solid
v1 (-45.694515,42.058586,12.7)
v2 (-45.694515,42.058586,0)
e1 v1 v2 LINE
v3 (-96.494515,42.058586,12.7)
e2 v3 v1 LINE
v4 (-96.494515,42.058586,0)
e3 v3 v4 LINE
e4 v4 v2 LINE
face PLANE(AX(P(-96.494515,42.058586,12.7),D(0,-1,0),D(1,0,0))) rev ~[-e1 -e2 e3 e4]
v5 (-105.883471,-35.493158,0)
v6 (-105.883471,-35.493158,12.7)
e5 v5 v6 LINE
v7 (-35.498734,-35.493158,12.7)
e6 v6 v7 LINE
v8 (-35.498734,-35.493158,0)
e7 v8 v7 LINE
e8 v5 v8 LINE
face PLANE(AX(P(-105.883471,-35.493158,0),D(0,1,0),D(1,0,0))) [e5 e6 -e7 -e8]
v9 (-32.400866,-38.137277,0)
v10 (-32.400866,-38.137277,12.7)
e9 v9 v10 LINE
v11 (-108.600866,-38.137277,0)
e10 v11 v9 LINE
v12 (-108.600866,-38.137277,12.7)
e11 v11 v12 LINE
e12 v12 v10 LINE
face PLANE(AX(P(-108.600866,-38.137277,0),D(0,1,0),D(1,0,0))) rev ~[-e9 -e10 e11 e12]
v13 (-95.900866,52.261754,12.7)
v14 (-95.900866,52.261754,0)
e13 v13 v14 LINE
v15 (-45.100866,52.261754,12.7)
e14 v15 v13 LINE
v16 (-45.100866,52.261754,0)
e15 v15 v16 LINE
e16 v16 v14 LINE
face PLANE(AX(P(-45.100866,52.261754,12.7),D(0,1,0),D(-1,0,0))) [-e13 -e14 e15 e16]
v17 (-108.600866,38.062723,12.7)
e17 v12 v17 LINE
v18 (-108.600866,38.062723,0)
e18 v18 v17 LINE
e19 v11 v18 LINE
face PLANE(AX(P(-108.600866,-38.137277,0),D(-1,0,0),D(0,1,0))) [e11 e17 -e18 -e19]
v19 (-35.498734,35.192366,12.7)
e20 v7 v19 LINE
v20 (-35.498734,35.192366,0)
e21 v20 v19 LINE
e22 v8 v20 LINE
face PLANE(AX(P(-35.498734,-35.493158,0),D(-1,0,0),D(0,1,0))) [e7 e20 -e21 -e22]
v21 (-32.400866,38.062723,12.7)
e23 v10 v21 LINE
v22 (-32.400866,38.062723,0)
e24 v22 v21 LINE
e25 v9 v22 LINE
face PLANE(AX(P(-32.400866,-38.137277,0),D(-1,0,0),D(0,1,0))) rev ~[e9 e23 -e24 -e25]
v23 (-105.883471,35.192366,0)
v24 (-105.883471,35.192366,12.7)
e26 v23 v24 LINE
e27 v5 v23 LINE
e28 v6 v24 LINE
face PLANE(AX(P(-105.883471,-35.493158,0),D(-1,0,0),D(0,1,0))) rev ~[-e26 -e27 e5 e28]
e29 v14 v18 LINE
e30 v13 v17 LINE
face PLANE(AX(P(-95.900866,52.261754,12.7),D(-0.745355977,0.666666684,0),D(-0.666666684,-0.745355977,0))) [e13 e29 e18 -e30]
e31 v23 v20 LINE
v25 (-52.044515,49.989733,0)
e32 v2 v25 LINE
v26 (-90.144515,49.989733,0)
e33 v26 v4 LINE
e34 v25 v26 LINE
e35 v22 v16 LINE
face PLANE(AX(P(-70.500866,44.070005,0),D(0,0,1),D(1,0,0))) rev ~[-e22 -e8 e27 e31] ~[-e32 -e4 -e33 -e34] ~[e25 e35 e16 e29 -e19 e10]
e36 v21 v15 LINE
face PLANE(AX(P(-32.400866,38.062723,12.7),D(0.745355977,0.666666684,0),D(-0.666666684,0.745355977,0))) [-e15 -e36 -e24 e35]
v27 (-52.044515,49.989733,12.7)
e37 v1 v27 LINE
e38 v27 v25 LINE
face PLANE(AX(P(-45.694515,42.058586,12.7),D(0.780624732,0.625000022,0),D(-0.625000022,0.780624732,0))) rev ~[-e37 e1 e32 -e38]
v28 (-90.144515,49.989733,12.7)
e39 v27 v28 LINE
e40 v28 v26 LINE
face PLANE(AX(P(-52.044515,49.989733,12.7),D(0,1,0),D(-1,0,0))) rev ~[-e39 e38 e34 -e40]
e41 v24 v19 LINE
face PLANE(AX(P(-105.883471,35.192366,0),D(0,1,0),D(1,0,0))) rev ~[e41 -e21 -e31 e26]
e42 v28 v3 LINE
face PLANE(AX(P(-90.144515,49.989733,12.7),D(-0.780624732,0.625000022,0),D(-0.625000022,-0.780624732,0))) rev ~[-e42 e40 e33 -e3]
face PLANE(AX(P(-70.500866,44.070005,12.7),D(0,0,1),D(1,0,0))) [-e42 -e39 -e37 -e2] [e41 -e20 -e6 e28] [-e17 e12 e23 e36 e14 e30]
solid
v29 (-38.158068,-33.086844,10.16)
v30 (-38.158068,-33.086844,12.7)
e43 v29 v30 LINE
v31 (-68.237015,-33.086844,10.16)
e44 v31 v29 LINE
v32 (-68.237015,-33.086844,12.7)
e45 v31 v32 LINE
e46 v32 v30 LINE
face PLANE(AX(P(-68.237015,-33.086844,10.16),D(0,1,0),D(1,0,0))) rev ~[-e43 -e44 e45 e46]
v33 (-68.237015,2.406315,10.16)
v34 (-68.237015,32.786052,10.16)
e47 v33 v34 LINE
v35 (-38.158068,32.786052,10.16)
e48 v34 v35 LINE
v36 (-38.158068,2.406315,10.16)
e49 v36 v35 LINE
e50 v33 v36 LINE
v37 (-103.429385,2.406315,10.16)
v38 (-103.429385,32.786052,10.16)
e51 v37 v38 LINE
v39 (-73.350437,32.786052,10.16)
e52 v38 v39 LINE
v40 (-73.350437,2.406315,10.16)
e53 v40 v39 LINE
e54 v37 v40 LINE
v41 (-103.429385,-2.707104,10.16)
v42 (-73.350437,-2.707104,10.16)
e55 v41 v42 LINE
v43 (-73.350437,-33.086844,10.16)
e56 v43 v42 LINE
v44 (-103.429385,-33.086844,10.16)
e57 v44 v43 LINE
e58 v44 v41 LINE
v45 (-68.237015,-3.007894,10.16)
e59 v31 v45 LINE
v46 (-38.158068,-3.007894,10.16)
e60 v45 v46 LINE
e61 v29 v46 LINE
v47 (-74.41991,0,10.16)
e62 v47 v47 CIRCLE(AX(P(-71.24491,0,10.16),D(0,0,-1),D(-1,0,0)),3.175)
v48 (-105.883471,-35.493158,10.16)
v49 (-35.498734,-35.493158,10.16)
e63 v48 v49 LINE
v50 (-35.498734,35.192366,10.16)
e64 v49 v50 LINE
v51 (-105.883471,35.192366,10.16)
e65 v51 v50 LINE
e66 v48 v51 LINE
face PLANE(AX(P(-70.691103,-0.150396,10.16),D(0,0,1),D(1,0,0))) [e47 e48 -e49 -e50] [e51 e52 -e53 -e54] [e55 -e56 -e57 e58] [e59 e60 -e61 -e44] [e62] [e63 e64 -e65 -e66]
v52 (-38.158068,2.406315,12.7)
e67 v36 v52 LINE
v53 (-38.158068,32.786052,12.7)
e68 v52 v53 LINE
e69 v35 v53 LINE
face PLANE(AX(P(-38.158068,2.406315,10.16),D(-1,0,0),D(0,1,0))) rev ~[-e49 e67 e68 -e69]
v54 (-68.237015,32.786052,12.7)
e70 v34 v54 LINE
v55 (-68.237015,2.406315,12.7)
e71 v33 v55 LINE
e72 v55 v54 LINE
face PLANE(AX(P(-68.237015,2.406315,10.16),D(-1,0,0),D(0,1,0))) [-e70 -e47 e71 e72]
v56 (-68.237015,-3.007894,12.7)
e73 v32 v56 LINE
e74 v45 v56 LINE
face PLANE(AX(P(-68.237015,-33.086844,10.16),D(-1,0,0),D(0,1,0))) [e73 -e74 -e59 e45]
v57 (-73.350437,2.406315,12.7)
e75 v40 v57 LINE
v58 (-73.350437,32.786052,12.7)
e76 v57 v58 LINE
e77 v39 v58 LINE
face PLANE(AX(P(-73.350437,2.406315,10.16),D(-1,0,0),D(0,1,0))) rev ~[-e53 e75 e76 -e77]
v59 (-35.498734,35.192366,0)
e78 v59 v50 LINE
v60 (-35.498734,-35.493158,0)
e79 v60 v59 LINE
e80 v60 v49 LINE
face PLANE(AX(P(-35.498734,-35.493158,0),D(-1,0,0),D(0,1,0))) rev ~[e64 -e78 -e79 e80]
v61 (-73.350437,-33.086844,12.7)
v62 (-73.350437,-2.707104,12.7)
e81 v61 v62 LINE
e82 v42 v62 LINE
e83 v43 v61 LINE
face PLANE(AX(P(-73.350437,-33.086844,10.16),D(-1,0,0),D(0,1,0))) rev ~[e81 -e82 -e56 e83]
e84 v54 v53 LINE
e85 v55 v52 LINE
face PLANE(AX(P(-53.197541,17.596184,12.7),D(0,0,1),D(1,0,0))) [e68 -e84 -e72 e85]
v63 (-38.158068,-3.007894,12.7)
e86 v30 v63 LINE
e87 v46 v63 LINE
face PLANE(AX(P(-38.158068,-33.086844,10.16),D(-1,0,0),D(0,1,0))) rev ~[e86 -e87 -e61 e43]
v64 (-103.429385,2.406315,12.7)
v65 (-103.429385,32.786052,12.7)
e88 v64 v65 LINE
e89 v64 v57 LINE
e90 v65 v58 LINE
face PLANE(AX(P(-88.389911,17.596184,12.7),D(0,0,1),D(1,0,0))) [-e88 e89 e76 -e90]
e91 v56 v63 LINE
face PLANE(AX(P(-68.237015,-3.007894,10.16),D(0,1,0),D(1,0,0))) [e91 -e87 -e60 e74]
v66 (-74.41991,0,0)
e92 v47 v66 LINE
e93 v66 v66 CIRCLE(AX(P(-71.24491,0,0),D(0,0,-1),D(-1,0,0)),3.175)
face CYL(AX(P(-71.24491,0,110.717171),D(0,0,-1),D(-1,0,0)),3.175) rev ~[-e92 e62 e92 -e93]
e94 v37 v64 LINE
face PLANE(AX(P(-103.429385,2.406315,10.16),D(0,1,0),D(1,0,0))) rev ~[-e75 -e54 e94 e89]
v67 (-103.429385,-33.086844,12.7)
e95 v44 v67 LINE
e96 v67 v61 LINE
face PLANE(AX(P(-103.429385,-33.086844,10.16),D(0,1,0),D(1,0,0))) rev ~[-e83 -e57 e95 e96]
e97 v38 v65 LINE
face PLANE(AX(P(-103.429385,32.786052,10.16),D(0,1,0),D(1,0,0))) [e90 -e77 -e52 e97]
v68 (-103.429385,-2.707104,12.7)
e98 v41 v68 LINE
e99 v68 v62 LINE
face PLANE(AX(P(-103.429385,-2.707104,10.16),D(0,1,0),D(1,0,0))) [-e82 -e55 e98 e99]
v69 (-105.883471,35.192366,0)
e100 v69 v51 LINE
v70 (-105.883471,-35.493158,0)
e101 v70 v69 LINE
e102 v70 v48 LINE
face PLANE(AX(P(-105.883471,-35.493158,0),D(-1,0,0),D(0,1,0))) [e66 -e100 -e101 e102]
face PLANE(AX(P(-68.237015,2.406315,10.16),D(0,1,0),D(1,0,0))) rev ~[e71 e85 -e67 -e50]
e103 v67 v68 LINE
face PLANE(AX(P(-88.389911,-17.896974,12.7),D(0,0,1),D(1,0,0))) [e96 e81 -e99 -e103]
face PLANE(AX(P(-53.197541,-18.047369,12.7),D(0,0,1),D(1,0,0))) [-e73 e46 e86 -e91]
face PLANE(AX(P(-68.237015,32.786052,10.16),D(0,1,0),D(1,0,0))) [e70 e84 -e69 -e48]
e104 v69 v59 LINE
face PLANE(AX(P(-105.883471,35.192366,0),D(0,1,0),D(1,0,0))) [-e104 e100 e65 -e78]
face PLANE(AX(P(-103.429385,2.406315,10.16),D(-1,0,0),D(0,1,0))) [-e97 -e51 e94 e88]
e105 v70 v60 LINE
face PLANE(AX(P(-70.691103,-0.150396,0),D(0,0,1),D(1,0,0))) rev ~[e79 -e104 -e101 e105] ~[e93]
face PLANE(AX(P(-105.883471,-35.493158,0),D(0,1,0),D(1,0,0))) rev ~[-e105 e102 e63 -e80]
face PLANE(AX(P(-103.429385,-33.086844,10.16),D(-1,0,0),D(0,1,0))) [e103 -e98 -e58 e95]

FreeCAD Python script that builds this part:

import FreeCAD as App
import Part
import Sketcher
Q = App.Units.Quantity

doc = App.newDocument("Part")
params = doc.addObject("Spreadsheet::Sheet", "Params")
for row, (alias, value) in enumerate([
    ("sketch1_width", "3 in"),
    ("pad1_length", "0.5 in"),
    ("sketch2_width", "3 in"),
    ("sketch2_width2", "2 in"),
    ("sketch2_length", "0.75 in"),
    ("pad2_length", "0.5 in"),
    ("sketch3_width", "2 in"),
    ("sketch3_width2", "1.5 in"),
    ("sketch3_length", "0.4 in"),
    ("pad3_length", "0.4 in"),
    ("pad4_length", "0.1 in"),
    ("sketch6_diameter", "0.25 in"),
    ("hole_diameter", "0.25 in"),
], start=1):
    params.set(f"A{row}", alias)
    params.set(f"B{row}", "=" + value)
    params.setAlias(f"B{row}", alias)

body = doc.addObject("PartDesign::Body", "Body")

sketch1 = doc.addObject("Sketcher::SketchObject", "Sketch")
body.addObject(sketch1)
sketch1.AttachmentSupport = (doc.XY_Plane, [""])
sketch1.MapMode = "FlatFace"
sketch1.addGeometry([
    Part.LineSegment(App.Vector(-109, 38, 0), App.Vector(-109, -38, 0)),
    Part.LineSegment(App.Vector(-109, -38, 0), App.Vector(-32, -38, 0)),
    Part.LineSegment(App.Vector(-32, -38, 0), App.Vector(-32, 38, 0)),
    Part.LineSegment(App.Vector(-32, 38, 0), App.Vector(-109, 38, 0)),
    Part.LineSegment(App.Vector(-35, -35, 0), App.Vector(-106, -35, 0)),
    Part.LineSegment(App.Vector(-106, -35, 0), App.Vector(-106, 35, 0)),
    Part.LineSegment(App.Vector(-106, 35, 0), App.Vector(-35, 35, 0)),
    Part.LineSegment(App.Vector(-35, 35, 0), App.Vector(-35, -35, 0)),
], False)
sketch1.addConstraint([
    Sketcher.Constraint("Coincident", 0, 2, 1, 1),
    Sketcher.Constraint("Coincident", 1, 2, 2, 1),
    Sketcher.Constraint("Coincident", 2, 2, 3, 1),
    Sketcher.Constraint("Coincident", 3, 2, 0, 1),
    Sketcher.Constraint("Coincident", 4, 2, 5, 1),
    Sketcher.Constraint("Coincident", 5, 2, 6, 1),
    Sketcher.Constraint("Coincident", 6, 2, 7, 1),
    Sketcher.Constraint("Coincident", 7, 2, 4, 1),
    Sketcher.Constraint("Vertical", 0),
    Sketcher.Constraint("Horizontal", 1),
    Sketcher.Constraint("Vertical", 2),
    Sketcher.Constraint("Horizontal", 3),
    Sketcher.Constraint("Horizontal", 4),
    Sketcher.Constraint("Vertical", 5),
    Sketcher.Constraint("Horizontal", 6),
    Sketcher.Constraint("Vertical", 7),
    Sketcher.Constraint("Equal", 3, 0),
    Sketcher.Constraint("DistanceX", 1, 1, 1, 2, Q("3 in")),
    Sketcher.Constraint("DistanceX", 4, 2, 4, 1, Q("70.384737 mm")),
    Sketcher.Constraint("DistanceY", 5, 1, 5, 2, Q("70.685525 mm")),
    Sketcher.Constraint("DistanceX", 4, 2, -1, 1, Q("105.883471 mm")),
    Sketcher.Constraint("DistanceY", 4, 2, -1, 1, Q("35.493158 mm")),
    Sketcher.Constraint("DistanceY", 0, 2, 4, 2, Q("2.644118 mm")),
    Sketcher.Constraint("DistanceX", 6, 2, 2, 2, Q("3.097868 mm")),
])
sketch1.setExpression("Constraints[17]", "Params.sketch1_width")
pad1 = doc.addObject("PartDesign::Pad", "Pad")
body.addObject(pad1)
pad1.Profile = sketch1
pad1.setExpression("Length", "Params.pad1_length")

sketch2 = doc.addObject("Sketcher::SketchObject", "Sketch001")
body.addObject(sketch2)
sketch2.AttachmentSupport = (doc.XY_Plane, [""])
sketch2.MapMode = "FlatFace"
sketch2.AttachmentOffset = App.Placement(App.Vector(0, 0, 0.5 * 25.4), App.Rotation())
sketch2.addGeometry([
    Part.LineSegment(App.Vector(-96, 52, 0), App.Vector(-109, 38, 0)),
    Part.LineSegment(App.Vector(-109, 38, 0), App.Vector(-32, 38, 0)),
    Part.LineSegment(App.Vector(-32, 38, 0), App.Vector(-45, 52, 0)),
    Part.LineSegment(App.Vector(-45, 52, 0), App.Vector(-96, 52, 0)),
], False)
sketch2.addConstraint([
    Sketcher.Constraint("Coincident", 0, 2, 1, 1),
    Sketcher.Constraint("Coincident", 1, 2, 2, 1),
    Sketcher.Constraint("Coincident", 2, 2, 3, 1),
    Sketcher.Constraint("Coincident", 3, 2, 0, 1),
    Sketcher.Constraint("Horizontal", 1),
    Sketcher.Constraint("Horizontal", 3),
    Sketcher.Constraint("Equal", 0, 2),
    Sketcher.Constraint("DistanceX", 1, 1, 1, 2, Q("3 in")),
    Sketcher.Constraint("DistanceX", 3, 2, 3, 1, Q("2 in")),
    Sketcher.Constraint("Distance", 0, Q("0.75 in")),
    Sketcher.Constraint("DistanceX", 0, 2, -1, 1, Q("108.600866 mm")),
    Sketcher.Constraint("DistanceY", -1, 1, 0, 2, Q("38.062723 mm")),
])
sketch2.setExpression("Constraints[7]", "Params.sketch2_width")
sketch2.setExpression("Constraints[8]", "Params.sketch2_width2")
sketch2.setExpression("Constraints[9]", "Params.sketch2_length")
pad2 = doc.addObject("PartDesign::Pad", "Pad001")
body.addObject(pad2)
pad2.Profile = sketch2
pad2.setExpression("Length", "Params.pad2_length")
pad2.Reversed = True

sketch3 = doc.addObject("Sketcher::SketchObject", "Sketch002")
body.addObject(sketch3)
sketch3.AttachmentSupport = (doc.XY_Plane, [""])
sketch3.MapMode = "FlatFace"
sketch3.AttachmentOffset = App.Placement(App.Vector(0, 0, 0.5 * 25.4), App.Rotation())
sketch3.addGeometry([
    Part.LineSegment(App.Vector(-90, 50, 0), App.Vector(-96, 42, 0)),
    Part.LineSegment(App.Vector(-96, 42, 0), App.Vector(-46, 42, 0)),
    Part.LineSegment(App.Vector(-46, 42, 0), App.Vector(-52, 50, 0)),
    Part.LineSegment(App.Vector(-52, 50, 0), App.Vector(-90, 50, 0)),
], False)
sketch3.addConstraint([
    Sketcher.Constraint("Coincident", 0, 2, 1, 1),
    Sketcher.Constraint("Coincident", 1, 2, 2, 1),
    Sketcher.Constraint("Coincident", 2, 2, 3, 1),
    Sketcher.Constraint("Coincident", 3, 2, 0, 1),
    Sketcher.Constraint("Horizontal", 1),
    Sketcher.Constraint("Horizontal", 3),
    Sketcher.Constraint("Equal", 0, 2),
    Sketcher.Constraint("DistanceX", 1, 1, 1, 2, Q("2 in")),
    Sketcher.Constraint("DistanceX", 3, 2, 3, 1, Q("1.5 in")),
    Sketcher.Constraint("Distance", 0, Q("0.4 in")),
    Sketcher.Constraint("DistanceX", 0, 2, -1, 1, Q("96.494515 mm")),
    Sketcher.Constraint("DistanceY", -1, 1, 0, 2, Q("42.058586 mm")),
])
sketch3.setExpression("Constraints[7]", "Params.sketch3_width")
sketch3.setExpression("Constraints[8]", "Params.sketch3_width2")
sketch3.setExpression("Constraints[9]", "Params.sketch3_length")
pocket1 = doc.addObject("PartDesign::Pocket", "Pocket")
body.addObject(pocket1)
pocket1.Profile = sketch3
pocket1.Type = "ThroughAll"
body2 = doc.addObject("PartDesign::Body", "Body001")

sketch4 = doc.addObject("Sketcher::SketchObject", "Sketch003")
body2.addObject(sketch4)
sketch4.AttachmentSupport = (doc.getObject("XY_Plane001"), [""])
sketch4.MapMode = "FlatFace"
sketch4.addGeometry([
    Part.LineSegment(App.Vector(-106, 35, 0), App.Vector(-106, -35, 0)),
    Part.LineSegment(App.Vector(-106, -35, 0), App.Vector(-35, -35, 0)),
    Part.LineSegment(App.Vector(-35, -35, 0), App.Vector(-35, 35, 0)),
    Part.LineSegment(App.Vector(-35, 35, 0), App.Vector(-106, 35, 0)),
], False)
sketch4.addConstraint([
    Sketcher.Constraint("Coincident", 0, 2, 1, 1),
    Sketcher.Constraint("Coincident", 1, 2, 2, 1),
    Sketcher.Constraint("Coincident", 2, 2, 3, 1),
    Sketcher.Constraint("Coincident", 3, 2, 0, 1),
    Sketcher.Constraint("Vertical", 0),
    Sketcher.Constraint("Horizontal", 1),
    Sketcher.Constraint("Vertical", 2),
    Sketcher.Constraint("Horizontal", 3),
    Sketcher.Constraint("DistanceX", 1, 1, 1, 2, Q("70.384737 mm")),
    Sketcher.Constraint("DistanceY", 0, 2, 0, 1, Q("70.685525 mm")),
    Sketcher.Constraint("DistanceX", 0, 2, -1, 1, Q("105.883471 mm")),
    Sketcher.Constraint("DistanceY", 0, 2, -1, 1, Q("35.493158 mm")),
])
pad3 = doc.addObject("PartDesign::Pad", "Pad002")
body2.addObject(pad3)
pad3.Profile = sketch4
pad3.setExpression("Length", "Params.pad3_length")

sketch5 = doc.addObject("Sketcher::SketchObject", "Sketch004")
body2.addObject(sketch5)
sketch5.AttachmentSupport = (doc.getObject("XY_Plane001"), [""])
sketch5.MapMode = "FlatFace"
sketch5.AttachmentOffset = App.Placement(App.Vector(0, 0, 0.4 * 25.4), App.Rotation())
sketch5.addGeometry([
    Part.LineSegment(App.Vector(-103, 33, 0), App.Vector(-103, 2, 0)),
    Part.LineSegment(App.Vector(-103, 2, 0), App.Vector(-73, 2, 0)),
    Part.LineSegment(App.Vector(-73, 2, 0), App.Vector(-73, 33, 0)),
    Part.LineSegment(App.Vector(-73, 33, 0), App.Vector(-103, 33, 0)),
    Part.LineSegment(App.Vector(-103, -3, 0), App.Vector(-103, -33, 0)),
    Part.LineSegment(App.Vector(-103, -33, 0), App.Vector(-73, -33, 0)),
    Part.LineSegment(App.Vector(-73, -33, 0), App.Vector(-73, -3, 0)),
    Part.LineSegment(App.Vector(-73, -3, 0), App.Vector(-103, -3, 0)),
    Part.LineSegment(App.Vector(-68, -3, 0), App.Vector(-68, -33, 0)),
    Part.LineSegment(App.Vector(-68, -33, 0), App.Vector(-38, -33, 0)),
    Part.LineSegment(App.Vector(-38, -33, 0), App.Vector(-38, -3, 0)),
    Part.LineSegment(App.Vector(-38, -3, 0), App.Vector(-68, -3, 0)),
    Part.LineSegment(App.Vector(-68, 33, 0), App.Vector(-68, 2, 0)),
    Part.LineSegment(App.Vector(-68, 2, 0), App.Vector(-38, 2, 0)),
    Part.LineSegment(App.Vector(-38, 2, 0), App.Vector(-38, 33, 0)),
    Part.LineSegment(App.Vector(-38, 33, 0), App.Vector(-68, 33, 0)),
], False)
sketch5.addConstraint([
    Sketcher.Constraint("Coincident", 0, 2, 1, 1),
    Sketcher.Constraint("Coincident", 1, 2, 2, 1),
    Sketcher.Constraint("Coincident", 2, 2, 3, 1),
    Sketcher.Constraint("Coincident", 3, 2, 0, 1),
    Sketcher.Constraint("Coincident", 4, 2, 5, 1),
    Sketcher.Constraint("Coincident", 5, 2, 6, 1),
    Sketcher.Constraint("Coincident", 6, 2, 7, 1),
    Sketcher.Constraint("Coincident", 7, 2, 4, 1),
    Sketcher.Constraint("Coincident", 8, 2, 9, 1),
    Sketcher.Constraint("Coincident", 9, 2, 10, 1),
    Sketcher.Constraint("Coincident", 10, 2, 11, 1),
    Sketcher.Constraint("Coincident", 11, 2, 8, 1),
    Sketcher.Constraint("Coincident", 12, 2, 13, 1),
    Sketcher.Constraint("Coincident", 13, 2, 14, 1),
    Sketcher.Constraint("Coincident", 14, 2, 15, 1),
    Sketcher.Constraint("Coincident", 15, 2, 12, 1),
    Sketcher.Constraint("Vertical", 0),
    Sketcher.Constraint("Horizontal", 1),
    Sketcher.Constraint("Vertical", 2),
    Sketcher.Constraint("Horizontal", 3),
    Sketcher.Constraint("Vertical", 4),
    Sketcher.Constraint("Horizontal", 5),
    Sketcher.Constraint("Vertical", 6),
    Sketcher.Constraint("Horizontal", 7),
    Sketcher.Constraint("Vertical", 8),
    Sketcher.Constraint("Horizontal", 9),
    Sketcher.Constraint("Vertical", 10),
    Sketcher.Constraint("Horizontal", 11),
    Sketcher.Constraint("Vertical", 12),
    Sketcher.Constraint("Horizontal", 13),
    Sketcher.Constraint("Vertical", 14),
    Sketcher.Constraint("Horizontal", 15),
    Sketcher.Constraint("Horizontal", 5, 2, 8, 2),
    Sketcher.Constraint("Horizontal", 1, 2, 12, 2),
    Sketcher.Constraint("Horizontal", 3, 2, 14, 2),
    Sketcher.Constraint("Vertical", 3, 2, 4, 2),
    Sketcher.Constraint("Vertical", 2, 2, 5, 2),
    Sketcher.Constraint("Vertical", 11, 2, 12, 2),
    Sketcher.Constraint("Vertical", 10, 2, 13, 2),
    Sketcher.Constraint("Equal", 7, 9),
    Sketcher.Constraint("Equal", 7, 8),
    Sketcher.Constraint("DistanceY", 4, 2, 4, 1, Q("30.379739 mm")),
    Sketcher.Constraint("DistanceY", 8, 2, 8, 1, Q("30.078949 mm")),
    Sketcher.Constraint("DistanceY", 0, 2, 0, 1, Q("30.379737 mm")),
    Sketcher.Constraint("DistanceY", 4, 2, 0, 2, Q("35.493159 mm")),
    Sketcher.Constraint("DistanceX", 4, 2, 8, 2, Q("35.19237 mm")),
    Sketcher.Constraint("DistanceX", 0, 2, -1, 1, Q("103.429385 mm")),
    Sketcher.Constraint("DistanceY", -1, 1, 0, 2, Q("2.406315 mm")),
])
pad4 = doc.addObject("PartDesign::Pad", "Pad003")
body2.addObject(pad4)
pad4.Profile = sketch5
pad4.setExpression("Length", "Params.pad4_length")

sketch6 = doc.addObject("Sketcher::SketchObject", "Sketch005")
body2.addObject(sketch6)
sketch6.AttachmentSupport = (doc.getObject("XY_Plane001"), [""])
sketch6.MapMode = "FlatFace"
sketch6.AttachmentOffset = App.Placement(App.Vector(0, 0, 0.4 * 25.4), App.Rotation())
sketch6.addGeometry(Part.Circle(App.Vector(-71.2, 0, 0), App.Vector(0, 0, 1), 3.2), False)
sketch6.addConstraint([
    Sketcher.Constraint("PointOnObject", 0, 3, -1),
    Sketcher.Constraint("Diameter", 0, Q("0.25 in")),
    Sketcher.Constraint("DistanceX", 0, 3, -1, 1, Q("71.24491 mm")),
])
sketch6.setExpression("Constraints[1]", "Params.sketch6_diameter")
doc.recompute()
hole = doc.addObject("PartDesign::Hole", "Hole")
body2.addObject(hole)
hole.Profile = sketch6
hole.ThreadType = "None"
hole.setExpression("Diameter", "Params.hole_diameter")
hole.DepthType = "ThroughAll"

doc.recompute()
